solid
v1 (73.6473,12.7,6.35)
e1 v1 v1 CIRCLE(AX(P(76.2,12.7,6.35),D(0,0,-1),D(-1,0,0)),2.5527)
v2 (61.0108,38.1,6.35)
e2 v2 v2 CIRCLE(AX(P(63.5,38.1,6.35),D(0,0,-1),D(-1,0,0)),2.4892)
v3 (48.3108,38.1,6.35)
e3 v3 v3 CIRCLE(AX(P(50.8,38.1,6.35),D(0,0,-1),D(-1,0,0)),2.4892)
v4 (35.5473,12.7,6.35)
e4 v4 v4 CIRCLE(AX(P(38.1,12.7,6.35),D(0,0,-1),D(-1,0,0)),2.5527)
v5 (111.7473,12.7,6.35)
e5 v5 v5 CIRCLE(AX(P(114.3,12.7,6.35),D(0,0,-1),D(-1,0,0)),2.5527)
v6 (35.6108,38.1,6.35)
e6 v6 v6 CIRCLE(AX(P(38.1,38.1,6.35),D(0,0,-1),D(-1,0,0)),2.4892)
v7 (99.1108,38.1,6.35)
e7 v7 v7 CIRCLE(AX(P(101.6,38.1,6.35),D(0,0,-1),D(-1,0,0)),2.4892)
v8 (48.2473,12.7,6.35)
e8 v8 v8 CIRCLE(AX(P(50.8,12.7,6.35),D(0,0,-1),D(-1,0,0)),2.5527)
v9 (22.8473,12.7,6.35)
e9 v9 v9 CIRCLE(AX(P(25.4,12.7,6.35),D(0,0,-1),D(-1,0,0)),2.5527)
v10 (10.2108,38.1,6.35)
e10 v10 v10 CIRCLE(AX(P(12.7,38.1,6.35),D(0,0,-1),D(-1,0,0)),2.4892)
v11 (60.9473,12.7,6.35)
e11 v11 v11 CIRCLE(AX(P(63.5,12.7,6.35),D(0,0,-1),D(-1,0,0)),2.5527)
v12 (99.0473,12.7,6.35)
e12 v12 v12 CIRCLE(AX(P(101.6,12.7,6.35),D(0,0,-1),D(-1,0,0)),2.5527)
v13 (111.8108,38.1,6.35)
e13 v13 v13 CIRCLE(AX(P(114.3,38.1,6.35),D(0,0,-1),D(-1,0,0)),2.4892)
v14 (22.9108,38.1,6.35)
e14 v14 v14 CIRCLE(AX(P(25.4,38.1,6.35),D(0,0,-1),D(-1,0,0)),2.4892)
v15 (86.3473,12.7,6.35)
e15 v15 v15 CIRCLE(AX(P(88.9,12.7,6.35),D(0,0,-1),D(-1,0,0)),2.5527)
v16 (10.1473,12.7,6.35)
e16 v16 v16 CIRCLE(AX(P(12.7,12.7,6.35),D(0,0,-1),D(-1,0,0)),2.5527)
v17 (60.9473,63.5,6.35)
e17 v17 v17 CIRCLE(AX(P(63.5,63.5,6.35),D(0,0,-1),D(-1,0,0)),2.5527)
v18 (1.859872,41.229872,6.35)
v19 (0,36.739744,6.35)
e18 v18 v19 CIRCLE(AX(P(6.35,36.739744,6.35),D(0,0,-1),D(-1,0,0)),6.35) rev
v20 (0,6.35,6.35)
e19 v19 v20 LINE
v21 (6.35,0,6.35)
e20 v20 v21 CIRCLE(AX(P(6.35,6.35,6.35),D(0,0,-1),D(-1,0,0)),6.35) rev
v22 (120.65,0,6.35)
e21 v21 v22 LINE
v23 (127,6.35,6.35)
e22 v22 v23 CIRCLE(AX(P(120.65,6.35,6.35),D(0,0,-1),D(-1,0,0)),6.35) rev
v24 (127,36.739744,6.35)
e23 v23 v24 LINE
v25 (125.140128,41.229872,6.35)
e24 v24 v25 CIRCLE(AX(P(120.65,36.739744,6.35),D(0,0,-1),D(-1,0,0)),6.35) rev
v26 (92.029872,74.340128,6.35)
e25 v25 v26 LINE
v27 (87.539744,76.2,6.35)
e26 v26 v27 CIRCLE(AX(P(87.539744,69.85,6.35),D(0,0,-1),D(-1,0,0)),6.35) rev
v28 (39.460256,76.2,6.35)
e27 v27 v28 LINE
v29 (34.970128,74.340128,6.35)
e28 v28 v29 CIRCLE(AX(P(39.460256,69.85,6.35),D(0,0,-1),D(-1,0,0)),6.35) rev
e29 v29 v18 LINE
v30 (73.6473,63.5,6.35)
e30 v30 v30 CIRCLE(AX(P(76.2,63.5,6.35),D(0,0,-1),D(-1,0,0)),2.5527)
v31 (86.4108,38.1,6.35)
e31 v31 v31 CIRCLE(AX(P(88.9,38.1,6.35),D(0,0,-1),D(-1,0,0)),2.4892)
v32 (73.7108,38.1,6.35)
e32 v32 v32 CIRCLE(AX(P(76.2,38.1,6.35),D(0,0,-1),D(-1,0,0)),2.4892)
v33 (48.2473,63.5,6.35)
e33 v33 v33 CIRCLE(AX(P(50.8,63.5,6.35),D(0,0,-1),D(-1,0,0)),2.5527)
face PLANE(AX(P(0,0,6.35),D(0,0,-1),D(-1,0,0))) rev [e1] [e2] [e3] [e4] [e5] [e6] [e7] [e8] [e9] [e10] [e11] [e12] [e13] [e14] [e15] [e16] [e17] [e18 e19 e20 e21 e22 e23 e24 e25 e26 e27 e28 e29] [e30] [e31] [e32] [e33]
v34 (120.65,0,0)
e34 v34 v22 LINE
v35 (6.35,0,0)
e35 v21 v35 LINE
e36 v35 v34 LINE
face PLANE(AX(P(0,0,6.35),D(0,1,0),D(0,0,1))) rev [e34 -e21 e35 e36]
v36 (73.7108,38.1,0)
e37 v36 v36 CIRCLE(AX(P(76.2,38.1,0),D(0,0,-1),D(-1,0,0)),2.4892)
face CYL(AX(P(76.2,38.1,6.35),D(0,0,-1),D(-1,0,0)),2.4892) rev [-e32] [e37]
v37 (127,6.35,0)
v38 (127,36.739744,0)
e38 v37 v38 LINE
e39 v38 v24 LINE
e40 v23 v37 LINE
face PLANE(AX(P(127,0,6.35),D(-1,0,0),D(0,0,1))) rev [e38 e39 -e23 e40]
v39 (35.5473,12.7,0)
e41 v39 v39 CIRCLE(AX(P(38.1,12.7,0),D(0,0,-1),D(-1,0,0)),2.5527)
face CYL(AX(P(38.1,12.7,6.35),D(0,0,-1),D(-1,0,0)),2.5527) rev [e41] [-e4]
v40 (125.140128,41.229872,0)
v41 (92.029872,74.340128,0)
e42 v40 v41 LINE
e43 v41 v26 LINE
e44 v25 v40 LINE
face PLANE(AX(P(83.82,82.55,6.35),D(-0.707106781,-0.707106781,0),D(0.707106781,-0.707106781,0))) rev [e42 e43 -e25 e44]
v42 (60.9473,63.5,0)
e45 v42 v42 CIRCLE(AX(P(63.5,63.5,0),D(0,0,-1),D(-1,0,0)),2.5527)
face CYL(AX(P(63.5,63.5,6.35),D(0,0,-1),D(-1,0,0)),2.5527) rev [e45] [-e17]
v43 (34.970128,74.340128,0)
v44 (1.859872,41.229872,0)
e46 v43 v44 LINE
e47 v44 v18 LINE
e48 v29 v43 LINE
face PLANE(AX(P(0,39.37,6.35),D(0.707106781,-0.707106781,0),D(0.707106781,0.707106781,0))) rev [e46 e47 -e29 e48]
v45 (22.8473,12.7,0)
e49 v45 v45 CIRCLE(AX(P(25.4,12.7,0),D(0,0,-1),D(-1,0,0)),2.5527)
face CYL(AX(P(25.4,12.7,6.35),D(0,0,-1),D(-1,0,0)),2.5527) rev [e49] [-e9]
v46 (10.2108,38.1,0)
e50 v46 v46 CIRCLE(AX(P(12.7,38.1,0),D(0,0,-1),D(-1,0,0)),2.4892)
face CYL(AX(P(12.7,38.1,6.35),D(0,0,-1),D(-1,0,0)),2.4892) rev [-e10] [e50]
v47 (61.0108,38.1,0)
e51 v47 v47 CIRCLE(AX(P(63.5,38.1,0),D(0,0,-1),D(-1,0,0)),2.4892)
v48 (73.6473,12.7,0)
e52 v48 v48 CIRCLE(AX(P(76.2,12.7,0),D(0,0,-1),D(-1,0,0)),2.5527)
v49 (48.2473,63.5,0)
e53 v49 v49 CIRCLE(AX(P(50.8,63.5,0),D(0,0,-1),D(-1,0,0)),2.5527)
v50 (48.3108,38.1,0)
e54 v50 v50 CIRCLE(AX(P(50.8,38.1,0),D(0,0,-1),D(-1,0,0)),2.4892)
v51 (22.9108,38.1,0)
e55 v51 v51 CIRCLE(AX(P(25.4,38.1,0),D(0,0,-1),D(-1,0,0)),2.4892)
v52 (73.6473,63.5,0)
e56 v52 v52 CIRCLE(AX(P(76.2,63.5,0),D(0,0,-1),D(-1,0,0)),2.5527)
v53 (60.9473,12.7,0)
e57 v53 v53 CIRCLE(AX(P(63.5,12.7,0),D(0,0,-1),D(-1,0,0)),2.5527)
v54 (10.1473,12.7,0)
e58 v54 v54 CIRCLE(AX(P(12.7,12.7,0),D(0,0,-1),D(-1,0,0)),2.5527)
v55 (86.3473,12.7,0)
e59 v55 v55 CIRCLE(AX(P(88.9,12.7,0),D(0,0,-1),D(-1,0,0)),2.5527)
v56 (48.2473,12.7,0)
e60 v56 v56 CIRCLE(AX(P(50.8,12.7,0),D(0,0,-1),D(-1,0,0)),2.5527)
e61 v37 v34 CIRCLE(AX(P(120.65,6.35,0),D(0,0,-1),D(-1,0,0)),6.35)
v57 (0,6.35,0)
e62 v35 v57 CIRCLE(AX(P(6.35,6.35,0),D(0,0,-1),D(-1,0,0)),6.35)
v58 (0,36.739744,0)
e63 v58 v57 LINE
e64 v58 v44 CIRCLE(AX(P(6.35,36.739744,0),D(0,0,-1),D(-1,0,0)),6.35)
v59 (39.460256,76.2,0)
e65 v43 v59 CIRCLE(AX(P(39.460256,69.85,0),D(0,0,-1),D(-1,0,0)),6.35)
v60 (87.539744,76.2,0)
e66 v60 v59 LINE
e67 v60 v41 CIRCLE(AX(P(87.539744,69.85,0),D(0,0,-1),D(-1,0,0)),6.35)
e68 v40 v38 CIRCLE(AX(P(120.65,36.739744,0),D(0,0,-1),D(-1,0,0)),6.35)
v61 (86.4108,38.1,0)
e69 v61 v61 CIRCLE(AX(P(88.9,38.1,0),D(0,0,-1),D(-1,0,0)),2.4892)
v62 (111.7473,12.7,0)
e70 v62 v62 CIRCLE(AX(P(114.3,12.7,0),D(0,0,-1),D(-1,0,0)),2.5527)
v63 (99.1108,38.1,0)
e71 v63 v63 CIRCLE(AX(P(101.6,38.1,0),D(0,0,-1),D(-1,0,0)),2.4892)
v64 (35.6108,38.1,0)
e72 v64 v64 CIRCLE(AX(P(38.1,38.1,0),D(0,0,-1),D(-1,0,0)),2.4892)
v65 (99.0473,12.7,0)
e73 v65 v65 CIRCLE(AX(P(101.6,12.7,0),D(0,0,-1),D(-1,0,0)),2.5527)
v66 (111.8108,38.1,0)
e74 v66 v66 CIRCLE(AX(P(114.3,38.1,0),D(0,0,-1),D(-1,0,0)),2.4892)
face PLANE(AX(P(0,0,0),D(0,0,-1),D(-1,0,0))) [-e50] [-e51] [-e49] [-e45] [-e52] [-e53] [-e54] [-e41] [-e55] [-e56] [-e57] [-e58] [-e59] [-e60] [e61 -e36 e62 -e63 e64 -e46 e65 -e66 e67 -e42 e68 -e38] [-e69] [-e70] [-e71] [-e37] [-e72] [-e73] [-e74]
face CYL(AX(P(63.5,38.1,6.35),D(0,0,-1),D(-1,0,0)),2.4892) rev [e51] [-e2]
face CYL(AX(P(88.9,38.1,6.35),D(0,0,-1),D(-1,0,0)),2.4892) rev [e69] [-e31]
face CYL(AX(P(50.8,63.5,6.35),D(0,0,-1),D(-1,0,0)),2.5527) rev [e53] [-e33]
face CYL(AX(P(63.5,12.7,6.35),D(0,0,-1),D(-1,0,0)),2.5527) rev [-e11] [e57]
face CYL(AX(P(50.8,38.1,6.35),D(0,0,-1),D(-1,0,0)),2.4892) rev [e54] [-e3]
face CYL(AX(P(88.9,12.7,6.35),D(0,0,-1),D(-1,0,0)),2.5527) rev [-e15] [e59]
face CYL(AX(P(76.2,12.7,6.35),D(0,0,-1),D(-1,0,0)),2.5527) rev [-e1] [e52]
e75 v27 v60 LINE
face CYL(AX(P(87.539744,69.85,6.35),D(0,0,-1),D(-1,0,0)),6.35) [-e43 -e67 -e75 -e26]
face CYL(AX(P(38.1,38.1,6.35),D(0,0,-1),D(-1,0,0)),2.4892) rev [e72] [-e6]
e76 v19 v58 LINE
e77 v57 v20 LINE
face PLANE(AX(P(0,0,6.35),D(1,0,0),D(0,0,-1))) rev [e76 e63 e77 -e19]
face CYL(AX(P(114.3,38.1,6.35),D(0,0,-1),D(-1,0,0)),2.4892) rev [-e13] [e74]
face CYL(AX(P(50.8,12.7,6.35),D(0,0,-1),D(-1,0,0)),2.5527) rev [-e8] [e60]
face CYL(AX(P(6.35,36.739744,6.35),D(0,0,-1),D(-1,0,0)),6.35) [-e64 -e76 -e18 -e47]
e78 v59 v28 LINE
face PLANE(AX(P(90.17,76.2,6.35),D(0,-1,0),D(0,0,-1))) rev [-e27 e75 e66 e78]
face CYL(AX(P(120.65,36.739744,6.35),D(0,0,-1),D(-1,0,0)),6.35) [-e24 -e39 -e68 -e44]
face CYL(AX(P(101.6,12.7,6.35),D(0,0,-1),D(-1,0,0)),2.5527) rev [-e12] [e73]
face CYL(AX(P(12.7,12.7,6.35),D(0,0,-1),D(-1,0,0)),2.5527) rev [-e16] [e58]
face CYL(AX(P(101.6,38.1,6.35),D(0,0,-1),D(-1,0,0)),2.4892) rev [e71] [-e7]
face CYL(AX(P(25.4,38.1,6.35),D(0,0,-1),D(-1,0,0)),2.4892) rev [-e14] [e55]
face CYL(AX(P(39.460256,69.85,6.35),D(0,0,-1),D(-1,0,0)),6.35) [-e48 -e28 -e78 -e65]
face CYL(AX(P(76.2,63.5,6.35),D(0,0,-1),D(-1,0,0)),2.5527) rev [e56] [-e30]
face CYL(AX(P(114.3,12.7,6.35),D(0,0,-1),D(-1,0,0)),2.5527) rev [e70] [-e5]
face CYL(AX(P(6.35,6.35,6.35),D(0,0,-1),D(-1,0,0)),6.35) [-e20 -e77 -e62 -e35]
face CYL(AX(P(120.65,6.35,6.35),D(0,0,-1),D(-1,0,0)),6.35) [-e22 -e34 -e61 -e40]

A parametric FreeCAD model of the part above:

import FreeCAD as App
import Part
import Sketcher
from FreeCAD import Vector
Q = App.Units.Quantity


def edges_at(feature, points):
    """Names of the edges that pass closest to the given points."""
    edges = feature.Shape.Edges
    near = lambda p: min(range(len(edges)), key=lambda i: edges[i].distToShape(Part.Vertex(*p))[0])
    return sorted({f"Edge{near(p) + 1}" for p in points})


def add_polygon(sketch, points):
    """Adds a closed chain of lines whose ends are joined by coincident constraints."""
    first, n = sketch.GeometryCount, len(points)
    for a, b in zip(points, points[1:] + points[:1]):
        sketch.addGeometry(Part.LineSegment(App.Vector(*a, 0), App.Vector(*b, 0)), False)
    for i in range(n):
        sketch.addConstraint(Sketcher.Constraint("Coincident", first + i, 2, first + (i + 1) % n, 1))

doc = App.newDocument("Part")
body = doc.addObject("PartDesign::Body", "Body")

sketch1 = body.newObject("Sketcher::SketchObject", "Sketch")
sketch1.AttachmentSupport = (doc.getObject("XY_Plane"), [""])
sketch1.MapMode = "FlatFace"
add_polygon(sketch1, [(0, 82.55), (0, 0), (127, 0), (127, 82.55)])
sketch1.addConstraint([
    Sketcher.Constraint("Vertical", 0),
    Sketcher.Constraint("Horizontal", 1),
    Sketcher.Constraint("Vertical", 2),
    Sketcher.Constraint("Horizontal", 3),
    Sketcher.Constraint("Coincident", 0, 2, -1, 1),
    Sketcher.Constraint("DistanceX", 1, 1, 1, 2, Q("5 in")),
    Sketcher.Constraint("DistanceY", 0, 2, 0, 1, Q("3.25 in")),
])
pad1 = body.newObject("PartDesign::Pad", "Pad")
pad1.Profile = sketch1
pad1.Length = Q("0.25 in")

sketch2 = body.newObject("Sketcher::SketchObject", "Sketch001")
sketch2.AttachmentSupport = (doc.getObject("XY_Plane"), [""])
sketch2.MapMode = "FlatFace"
sketch2.addGeometry([
    Part.Circle(Vector(76.2, 63.5, 0), Vector(0, 0, 1), 2.5527),
    Part.Circle(Vector(63.5, 63.5, 0), Vector(0, 0, 1), 2.5527),
    Part.Circle(Vector(50.8, 63.5, 0), Vector(0, 0, 1), 2.5527),
], False)
sketch2.addConstraint([
    Sketcher.Constraint("Equal", 0, 1),
    Sketcher.Constraint("Equal", 1, 2),
    Sketcher.Constraint("Horizontal", 0, 3, 1, 3),
    Sketcher.Constraint("Horizontal", 1, 3, 2, 3),
    Sketcher.Constraint("Diameter", 0, Q("0.201 in")),
    Sketcher.Constraint("DistanceX", -1, 1, 0, 3, Q("3 in")),
    Sketcher.Constraint("DistanceX", -1, 1, 2, 3, Q("2 in")),
    Sketcher.Constraint("DistanceY", -1, 1, 0, 3, Q("2.5 in")),
    Sketcher.Constraint("DistanceX", -1, 1, 1, 3, Q("2.5 in")),
])
pocket1 = body.newObject("PartDesign::Pocket", "Pocket")
pocket1.Profile = sketch2
pocket1.Type = "ThroughAll"
pocket1.Midplane = True

sketch3 = body.newObject("Sketcher::SketchObject", "Sketch002")
sketch3.AttachmentSupport = (doc.getObject("XY_Plane"), [""])
sketch3.MapMode = "FlatFace"
sketch3.addGeometry([
    Part.Circle(Vector(114.3, 38.1, 0), Vector(0, 0, 1), 2.4892),
    Part.Circle(Vector(114.3, 12.7, 0), Vector(0, 0, 1), 2.5527),
    Part.Circle(Vector(101.6, 38.1, 0), Vector(0, 0, 1), 2.4892),
    Part.Circle(Vector(101.6, 12.7, 0), Vector(0, 0, 1), 2.5527),
    Part.Circle(Vector(88.9, 38.1, 0), Vector(0, 0, 1), 2.4892),
    Part.Circle(Vector(88.9, 12.7, 0), Vector(0, 0, 1), 2.5527),
    Part.Circle(Vector(76.2, 38.1, 0), Vector(0, 0, 1), 2.4892),
    Part.Circle(Vector(76.2, 12.7, 0), Vector(0, 0, 1), 2.5527),
    Part.Circle(Vector(63.5, 38.1, 0), Vector(0, 0, 1), 2.4892),
    Part.Circle(Vector(63.5, 12.7, 0), Vector(0, 0, 1), 2.5527),
    Part.Circle(Vector(50.8, 38.1, 0), Vector(0, 0, 1), 2.4892),
    Part.Circle(Vector(50.8, 12.7, 0), Vector(0, 0, 1), 2.5527),
    Part.Circle(Vector(38.1, 38.1, 0), Vector(0, 0, 1), 2.4892),
    Part.Circle(Vector(38.1, 12.7, 0), Vector(0, 0, 1), 2.5527),
    Part.Circle(Vector(25.4, 38.1, 0), Vector(0, 0, 1), 2.4892),
    Part.Circle(Vector(25.4, 12.7, 0), Vector(0, 0, 1), 2.5527),
    Part.Circle(Vector(12.7, 38.1, 0), Vector(0, 0, 1), 2.4892),
    Part.Circle(Vector(12.7, 12.7, 0), Vector(0, 0, 1), 2.5527),
], False)
sketch3.addConstraint([
    Sketcher.Constraint("Equal", 0, 2),
    Sketcher.Constraint("Equal", 1, 3),
    Sketcher.Constraint("Equal", 2, 4),
    Sketcher.Constraint("Equal", 3, 5),
    Sketcher.Constraint("Equal", 4, 6),
    Sketcher.Constraint("Equal", 5, 7),
    Sketcher.Constraint("Equal", 6, 8),
    Sketcher.Constraint("Equal", 7, 9),
    Sketcher.Constraint("Equal", 8, 10),
    Sketcher.Constraint("Equal", 9, 11),
    Sketcher.Constraint("Equal", 10, 12),
    Sketcher.Constraint("Equal", 11, 13),
    Sketcher.Constraint("Equal", 12, 14),
    Sketcher.Constraint("Equal", 13, 15),
    Sketcher.Constraint("Equal", 14, 16),
    Sketcher.Constraint("Equal", 15, 17),
    Sketcher.Constraint("Horizontal", 0, 3, 2, 3),
    Sketcher.Constraint("Horizontal", 1, 3, 3, 3),
    Sketcher.Constraint("Horizontal", 2, 3, 4, 3),
    Sketcher.Constraint("Horizontal", 3, 3, 5, 3),
    Sketcher.Constraint("Horizontal", 4, 3, 6, 3),
    Sketcher.Constraint("Horizontal", 5, 3, 7, 3),
    Sketcher.Constraint("Horizontal", 6, 3, 8, 3),
    Sketcher.Constraint("Horizontal", 7, 3, 9, 3),
    Sketcher.Constraint("Horizontal", 8, 3, 10, 3),
    Sketcher.Constraint("Horizontal", 9, 3, 11, 3),
    Sketcher.Constraint("Horizontal", 10, 3, 12, 3),
    Sketcher.Constraint("Horizontal", 11, 3, 13, 3),
    Sketcher.Constraint("Horizontal", 12, 3, 14, 3),
    Sketcher.Constraint("Horizontal", 13, 3, 15, 3),
    Sketcher.Constraint("Horizontal", 14, 3, 16, 3),
    Sketcher.Constraint("Horizontal", 15, 3, 17, 3),
    Sketcher.Constraint("Vertical", 0, 3, 1, 3),
    Sketcher.Constraint("Vertical", 2, 3, 3, 3),
    Sketcher.Constraint("Vertical", 4, 3, 5, 3),
    Sketcher.Constraint("Vertical", 6, 3, 7, 3),
    Sketcher.Constraint("Vertical", 8, 3, 9, 3),
    Sketcher.Constraint("Vertical", 10, 3, 11, 3),
    Sketcher.Constraint("Vertical", 12, 3, 13, 3),
    Sketcher.Constraint("Vertical", 14, 3, 15, 3),
    Sketcher.Constraint("Vertical", 16, 3, 17, 3),
    Sketcher.Constraint("Diameter", 0, Q("0.196 in")),
    Sketcher.Constraint("Diameter", 1, Q("0.201 in")),
    Sketcher.Constraint("DistanceX", -1, 1, 2, 3, Q("4 in")),
    Sketcher.Constraint("DistanceX", -1, 1, 6, 3, Q("3 in")),
    Sketcher.Constraint("DistanceX", -1, 1, 10, 3, Q("2 in")),
    Sketcher.Constraint("DistanceX", -1, 1, 14, 3, Q("1 in")),
    Sketcher.Constraint("DistanceY", 1, 3, 0, 3, Q("1 in")),
    Sketcher.Constraint("DistanceX", 4, 3, 0, 3, Q("1 in")),
    Sketcher.Constraint("DistanceX", 8, 3, 4, 3, Q("1 in")),
    Sketcher.Constraint("DistanceX", 12, 3, 8, 3, Q("1 in")),
    Sketcher.Constraint("DistanceX", 16, 3, 12, 3, Q("1 in")),
    Sketcher.Constraint("DistanceX", -1, 1, 0, 3, Q("4.5 in")),
    Sketcher.Constraint("DistanceY", -1, 1, 0, 3, Q("1.5 in")),
])
pocket2 = body.newObject("PartDesign::Pocket", "Pocket001")
pocket2.Profile = sketch3
pocket2.Type = "ThroughAll"
pocket2.Reversed = True

sketch4 = body.newObject("Sketcher::SketchObject", "Sketch003")
sketch4.AttachmentSupport = (doc.getObject("XY_Plane"), [""])
sketch4.MapMode = "FlatFace"
add_polygon(sketch4, [(127, 39.37), (83.82, 82.55), (127, 82.55)])
add_polygon(sketch4, [(0, 82.55), (43.18, 82.55), (0, 39.37)])
sketch4.addConstraint([
    Sketcher.Constraint("Horizontal", 1),
    Sketcher.Constraint("Vertical", 2),
    Sketcher.Constraint("Horizontal", 3),
    Sketcher.Constraint("Vertical", 5),
    Sketcher.Constraint("PointOnObject", 4, 2, -2),
    Sketcher.Constraint("Perpendicular", 0, 4),
    Sketcher.Constraint("Horizontal", 1, 2, 3, 2),
    Sketcher.Constraint("Horizontal", 2, 2, 4, 2),
    Sketcher.Constraint("Equal", 1, 3),
    Sketcher.Constraint("DistanceX", 1, 1, 1, 2, Q("1.7 in")),
    Sketcher.Constraint("DistanceX", -1, 1, 1, 2, Q("5 in")),
    Sketcher.Constraint("DistanceY", -1, 1, 0, 2, Q("3.25 in")),
])
pocket3 = body.newObject("PartDesign::Pocket", "Pocket002")
pocket3.Profile = sketch4
pocket3.Type = "ThroughAll"
pocket3.Reversed = True

sketch5 = body.newObject("Sketcher::SketchObject", "Sketch004")
sketch5.AttachmentSupport = (doc.getObject("XY_Plane"), [""])
sketch5.MapMode = "FlatFace"
add_polygon(sketch5, [(90.17, 76.2), (36.83, 76.2), (43.18, 82.55), (83.82, 82.55)])
sketch5.addConstraint([
    Sketcher.Constraint("Horizontal", 0),
    Sketcher.Constraint("Horizontal", 2),
    Sketcher.Constraint("Perpendicular", 1, 3),
    Sketcher.Constraint("Equal", 1, 3),
    Sketcher.Constraint("DistanceX", 0, 2, 0, 1, Q("2.1 in")),
    Sketcher.Constraint("DistanceX", 2, 1, 2, 2, Q("1.6 in")),
    Sketcher.Constraint("DistanceY", -1, 1, 0, 2, Q("3 in")),
    Sketcher.Constraint("DistanceX", -1, 1, 1, 2, Q("1.7 in")),
])
pocket4 = body.newObject("PartDesign::Pocket", "Pocket003")
pocket4.Profile = sketch5
pocket4.Type = "ThroughAll"
pocket4.Reversed = True
doc.recompute()

fillet = body.newObject("PartDesign::Fillet", "Fillet")
fillet.Base = (pocket4, edges_at(pocket4, [
    (127, 39.37, 3.175),
    (0, 39.37, 3.175),
    (90.17, 76.2, 3.175),
    (36.83, 76.2, 3.175),
    (127, 0, 3.175),
    (0, 0, 3.175),
]))
fillet.Radius = Q("0.25 in")

doc.recompute()
